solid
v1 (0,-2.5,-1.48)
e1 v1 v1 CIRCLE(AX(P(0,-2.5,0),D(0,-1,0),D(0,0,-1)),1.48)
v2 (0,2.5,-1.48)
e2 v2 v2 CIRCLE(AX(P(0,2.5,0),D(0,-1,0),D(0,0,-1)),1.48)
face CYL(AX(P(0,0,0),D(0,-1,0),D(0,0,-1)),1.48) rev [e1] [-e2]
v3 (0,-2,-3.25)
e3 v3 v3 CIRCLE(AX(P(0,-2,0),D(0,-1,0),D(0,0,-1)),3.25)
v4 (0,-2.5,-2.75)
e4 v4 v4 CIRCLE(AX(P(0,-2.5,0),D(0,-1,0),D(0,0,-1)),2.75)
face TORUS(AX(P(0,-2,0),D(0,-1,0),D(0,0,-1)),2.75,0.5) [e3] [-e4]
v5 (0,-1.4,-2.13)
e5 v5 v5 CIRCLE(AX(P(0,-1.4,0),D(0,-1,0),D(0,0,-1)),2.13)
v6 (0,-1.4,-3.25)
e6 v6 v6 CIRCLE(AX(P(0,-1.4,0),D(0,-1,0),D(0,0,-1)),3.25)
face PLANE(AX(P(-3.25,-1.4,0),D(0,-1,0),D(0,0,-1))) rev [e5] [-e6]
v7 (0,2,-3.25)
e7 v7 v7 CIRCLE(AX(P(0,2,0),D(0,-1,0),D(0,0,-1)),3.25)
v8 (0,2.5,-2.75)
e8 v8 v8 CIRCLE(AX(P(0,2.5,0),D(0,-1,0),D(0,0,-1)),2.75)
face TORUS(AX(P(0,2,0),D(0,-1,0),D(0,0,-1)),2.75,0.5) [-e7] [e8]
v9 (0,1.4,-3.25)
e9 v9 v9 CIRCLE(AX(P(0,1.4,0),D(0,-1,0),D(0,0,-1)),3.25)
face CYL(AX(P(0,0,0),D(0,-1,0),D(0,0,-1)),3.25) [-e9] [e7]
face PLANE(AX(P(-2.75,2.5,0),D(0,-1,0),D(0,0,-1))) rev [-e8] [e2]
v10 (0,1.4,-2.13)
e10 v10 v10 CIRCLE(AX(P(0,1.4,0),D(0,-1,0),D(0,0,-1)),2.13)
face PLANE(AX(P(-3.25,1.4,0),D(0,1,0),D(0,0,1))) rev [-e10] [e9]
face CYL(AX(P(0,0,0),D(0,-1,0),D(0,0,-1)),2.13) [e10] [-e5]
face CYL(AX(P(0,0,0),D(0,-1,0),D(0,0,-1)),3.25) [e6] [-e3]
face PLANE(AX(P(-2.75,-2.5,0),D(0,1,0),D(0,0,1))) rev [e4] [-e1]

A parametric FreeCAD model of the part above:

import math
import FreeCAD as App
import Part
import Sketcher

V = App.Vector

doc = App.newDocument("Part")
body = doc.addObject("PartDesign::Body", "Body")

# Sketch on XY plane
sketch1 = body.newObject("Sketcher::SketchObject", "Sketch")
sketch1.AttachmentSupport = (doc.getObject("XY_Plane"), [""])
sketch1.MapMode = "FlatFace"
sketch1.addGeometry([
    Part.LineSegment(V(-3.25, -1.4, 0), V(-3.25, -2, 0)),  # 0
    Part.ArcOfCircle(Part.Circle(V(-2.75, -2, 0), V(0, 0, 1), 0.5), math.radians(180), math.radians(270)),  # 1
    Part.LineSegment(V(-2.75, -2.5, 0), V(-1.48, -2.5, 0)),  # 2
    Part.LineSegment(V(-1.48, -2.5, 0), V(-1.48, 2.5, 0)),  # 3
    Part.LineSegment(V(-1.48, 2.5, 0), V(-2.75, 2.5, 0)),  # 4
    Part.ArcOfCircle(Part.Circle(V(-2.75, 2, 0), V(0, 0, 1), 0.5), math.radians(90), math.radians(180)),  # 5
    Part.LineSegment(V(-3.25, 2, 0), V(-3.25, 1.4, 0)),  # 6
    Part.LineSegment(V(-3.25, 1.4, 0), V(-2.13, 1.4, 0)),  # 7
    Part.LineSegment(V(-2.13, 1.4, 0), V(-2.13, -1.4, 0)),  # 8
    Part.LineSegment(V(-2.13, -1.4, 0), V(-3.25, -1.4, 0)),  # 9
], False)
sketch1.addConstraint([
    Sketcher.Constraint("Tangent", 0, 2, 1, 1),
    Sketcher.Constraint("Tangent", 1, 2, 2, 1),
    Sketcher.Constraint("Coincident", 2, 2, 3, 1),
    Sketcher.Constraint("Coincident", 3, 2, 4, 1),
    Sketcher.Constraint("Tangent", 4, 2, 5, 1),
    Sketcher.Constraint("Tangent", 5, 2, 6, 1),
    Sketcher.Constraint("Coincident", 6, 2, 7, 1),
    Sketcher.Constraint("Coincident", 7, 2, 8, 1),
    Sketcher.Constraint("Coincident", 8, 2, 9, 1),
    Sketcher.Constraint("Coincident", 9, 2, 0, 1),
    Sketcher.Constraint("Vertical", 0),
    Sketcher.Constraint("Horizontal", 2),
    Sketcher.Constraint("Vertical", 3),
    Sketcher.Constraint("Horizontal", 4),
    Sketcher.Constraint("Vertical", 6),
    Sketcher.Constraint("Horizontal", 7),
    Sketcher.Constraint("Vertical", 8),
    Sketcher.Constraint("Horizontal", 9),
    Sketcher.Constraint("Equal", 1, 5),
    Sketcher.Constraint("Symmetric", 1, 3, 5, 3, -1),
    Sketcher.Constraint("Equal", 0, 6),
    Sketcher.Constraint("Radius", 1, 0.5),
    Sketcher.Constraint("DistanceY", 3, 1, 3, 2, 5.0),
    Sketcher.Constraint("DistanceY", 0, 2, 0, 1, 0.6),
    Sketcher.Constraint("DistanceX", 2, 1, 2, 2, 1.27),
    Sketcher.Constraint("DistanceX", 7, 1, 7, 2, 1.12),
    Sketcher.Constraint("DistanceX", 1, 3, -1, 1, 2.75),
])
revolution = body.newObject("PartDesign::Revolution", "Revolution")
revolution.Profile = sketch1
revolution.ReferenceAxis = (sketch1, ["V_Axis"])
revolution.Angle = 360

doc.recompute()
